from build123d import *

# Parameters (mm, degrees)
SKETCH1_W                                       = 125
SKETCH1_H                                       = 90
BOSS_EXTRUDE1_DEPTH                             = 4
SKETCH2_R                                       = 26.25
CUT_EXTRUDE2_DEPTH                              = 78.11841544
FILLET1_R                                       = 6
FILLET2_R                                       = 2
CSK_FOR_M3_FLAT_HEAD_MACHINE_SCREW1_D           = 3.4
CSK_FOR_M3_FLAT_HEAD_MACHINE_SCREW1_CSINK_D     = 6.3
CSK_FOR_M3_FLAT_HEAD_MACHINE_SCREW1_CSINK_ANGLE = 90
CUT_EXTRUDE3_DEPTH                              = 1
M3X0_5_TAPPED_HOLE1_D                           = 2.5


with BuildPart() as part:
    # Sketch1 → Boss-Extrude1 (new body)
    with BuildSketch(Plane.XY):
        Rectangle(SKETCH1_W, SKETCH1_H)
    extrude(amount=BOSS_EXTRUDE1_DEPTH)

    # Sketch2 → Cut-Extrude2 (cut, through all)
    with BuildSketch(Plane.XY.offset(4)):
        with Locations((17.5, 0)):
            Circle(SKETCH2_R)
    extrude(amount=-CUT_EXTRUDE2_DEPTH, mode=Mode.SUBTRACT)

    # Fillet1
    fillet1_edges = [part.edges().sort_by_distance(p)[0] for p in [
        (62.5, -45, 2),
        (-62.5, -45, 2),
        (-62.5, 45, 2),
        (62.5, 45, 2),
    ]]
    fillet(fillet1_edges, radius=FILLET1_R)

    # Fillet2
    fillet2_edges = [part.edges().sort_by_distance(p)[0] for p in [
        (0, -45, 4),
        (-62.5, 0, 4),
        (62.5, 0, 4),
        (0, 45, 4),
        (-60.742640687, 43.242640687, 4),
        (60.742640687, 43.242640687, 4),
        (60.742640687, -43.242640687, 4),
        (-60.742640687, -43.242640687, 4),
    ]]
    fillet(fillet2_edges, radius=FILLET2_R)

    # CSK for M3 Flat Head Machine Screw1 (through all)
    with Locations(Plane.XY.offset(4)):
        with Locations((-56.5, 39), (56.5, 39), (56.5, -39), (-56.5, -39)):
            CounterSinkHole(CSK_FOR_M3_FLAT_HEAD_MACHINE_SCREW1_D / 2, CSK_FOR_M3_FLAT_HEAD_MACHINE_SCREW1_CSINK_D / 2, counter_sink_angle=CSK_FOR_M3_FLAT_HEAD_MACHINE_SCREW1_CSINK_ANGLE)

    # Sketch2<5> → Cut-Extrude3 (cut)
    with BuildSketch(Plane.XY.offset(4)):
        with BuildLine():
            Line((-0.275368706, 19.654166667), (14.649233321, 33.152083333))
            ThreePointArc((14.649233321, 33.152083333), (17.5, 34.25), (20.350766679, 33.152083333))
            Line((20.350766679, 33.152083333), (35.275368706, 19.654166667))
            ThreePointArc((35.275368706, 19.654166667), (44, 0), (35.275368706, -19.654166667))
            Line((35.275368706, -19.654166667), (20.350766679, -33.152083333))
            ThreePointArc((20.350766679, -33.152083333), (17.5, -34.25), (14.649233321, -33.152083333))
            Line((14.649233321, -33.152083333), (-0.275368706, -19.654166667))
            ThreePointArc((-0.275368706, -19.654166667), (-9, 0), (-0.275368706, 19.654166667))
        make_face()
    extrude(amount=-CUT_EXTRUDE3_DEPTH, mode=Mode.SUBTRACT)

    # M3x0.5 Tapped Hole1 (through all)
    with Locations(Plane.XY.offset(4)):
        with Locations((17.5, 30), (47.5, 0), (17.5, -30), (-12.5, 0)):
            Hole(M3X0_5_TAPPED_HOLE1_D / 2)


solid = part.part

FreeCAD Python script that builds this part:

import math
import FreeCAD as App
import Part
import Sketcher


def edges_at(feature, points):
    """Names of the edges that pass closest to the given points."""
    edges = feature.Shape.Edges
    near = lambda p: min(range(len(edges)), key=lambda i: edges[i].distToShape(Part.Vertex(*p))[0])
    return sorted({f"Edge{near(p) + 1}" for p in points})

doc = App.newDocument("Part")
body = doc.addObject("PartDesign::Body", "Body")

# Sketch on XY plane
sketch1 = body.newObject("Sketcher::SketchObject", "Sketch")
sketch1.AttachmentSupport = (doc.getObject("XY_Plane"), [""])
sketch1.MapMode = "FlatFace"
sketch1.addGeometry(Part.LineSegment(App.Vector(-62, 45, 0), App.Vector(-62, -45, 0)), False)
sketch1.addGeometry(Part.LineSegment(App.Vector(-62, -45, 0), App.Vector(62, -45, 0)), False)
sketch1.addGeometry(Part.LineSegment(App.Vector(62, -45, 0), App.Vector(62, 45, 0)), False)
sketch1.addGeometry(Part.LineSegment(App.Vector(62, 45, 0), App.Vector(-62, 45, 0)), False)
sketch1.addConstraint(Sketcher.Constraint("Coincident", 0, 2, 1, 1))
sketch1.addConstraint(Sketcher.Constraint("Coincident", 1, 2, 2, 1))
sketch1.addConstraint(Sketcher.Constraint("Coincident", 2, 2, 3, 1))
sketch1.addConstraint(Sketcher.Constraint("Coincident", 3, 2, 0, 1))
sketch1.addConstraint(Sketcher.Constraint("Vertical", 0))
sketch1.addConstraint(Sketcher.Constraint("Horizontal", 1))
sketch1.addConstraint(Sketcher.Constraint("Vertical", 2))
sketch1.addConstraint(Sketcher.Constraint("Horizontal", 3))
sketch1.addConstraint(Sketcher.Constraint("Symmetric", 0, 2, 2, 2, -1, 1))
sketch1.addConstraint(Sketcher.Constraint("DistanceX", 1, 1, 1, 2, 125.0))
sketch1.addConstraint(Sketcher.Constraint("DistanceY", 0, 2, 0, 1, 90.0))
pad1 = body.newObject("PartDesign::Pad", "Pad")
pad1.Profile = sketch1
pad1.Length = 4

# Sketch on XY plane
sketch2 = body.newObject("Sketcher::SketchObject", "Sketch001")
sketch2.AttachmentSupport = (doc.getObject("XY_Plane"), [""])
sketch2.MapMode = "FlatFace"
sketch2.AttachmentOffset = App.Placement(App.Vector(0, 0, 4), App.Rotation())
sketch2.addGeometry(Part.Circle(App.Vector(18, 0, 0), App.Vector(0, 0, 1), 26), False)
sketch2.addConstraint(Sketcher.Constraint("PointOnObject", 0, 3, -1))
sketch2.addConstraint(Sketcher.Constraint("Diameter", 0, 52.5))
sketch2.addConstraint(Sketcher.Constraint("DistanceX", -1, 1, 0, 3, 17.5))
pocket1 = body.newObject("PartDesign::Pocket", "Pocket")
pocket1.Profile = sketch2
pocket1.Type = "ThroughAll"
doc.recompute()

fillet = body.newObject("PartDesign::Fillet", "Fillet")
fillet.Base = (pocket1, edges_at(pocket1, [
    (62.5, -45, 2),
    (-62.5, -45, 2),
    (-62.5, 45, 2),
    (62.5, 45, 2),
]))
fillet.Radius = 6
doc.recompute()

fillet2 = body.newObject("PartDesign::Fillet", "Fillet001")
fillet2.Base = (fillet, edges_at(fillet, [
    (0, -45, 4),
    (-62.5, 0, 4),
    (62.5, 0, 4),
    (0, 45, 4),
    (-60.743, 43.243, 4),
    (60.743, 43.243, 4),
    (60.743, -43.243, 4),
    (-60.743, -43.243, 4),
]))
fillet2.Radius = 2

# Sketch on XY plane
sketch3 = body.newObject("Sketcher::SketchObject", "Sketch002")
sketch3.AttachmentSupport = (doc.getObject("XY_Plane"), [""])
sketch3.MapMode = "FlatFace"
sketch3.AttachmentOffset = App.Placement(App.Vector(0, 0, 4), App.Rotation())
sketch3.addGeometry(Part.Circle(App.Vector(-56.5, 39, 0), App.Vector(0, 0, 1), 1.7), False)
sketch3.addGeometry(Part.Circle(App.Vector(56.5, 39, 0), App.Vector(0, 0, 1), 1.7), False)
sketch3.addGeometry(Part.Circle(App.Vector(56.5, -39, 0), App.Vector(0, 0, 1), 1.7), False)
sketch3.addGeometry(Part.Circle(App.Vector(-56.5, -39, 0), App.Vector(0, 0, 1), 1.7), False)
sketch3.addConstraint(Sketcher.Constraint("Equal", 0, 1))
sketch3.addConstraint(Sketcher.Constraint("Equal", 1, 2))
sketch3.addConstraint(Sketcher.Constraint("Equal", 2, 3))
sketch3.addConstraint(Sketcher.Constraint("Symmetric", 0, 3, 2, 3, -1, 1))
sketch3.addConstraint(Sketcher.Constraint("Symmetric", 1, 3, 3, 3, -1, 1))
sketch3.addConstraint(Sketcher.Constraint("Symmetric", 0, 3, 1, 3, -2))
sketch3.addConstraint(Sketcher.Constraint("Diameter", 0, 3.4))
sketch3.addConstraint(Sketcher.Constraint("DistanceY", -1, 1, 0, 3, 39.0))
sketch3.addConstraint(Sketcher.Constraint("DistanceX", 0, 3, 1, 3, 113.0))
doc.recompute()
hole = body.newObject("PartDesign::Hole", "Hole")
hole.Profile = sketch3
hole.ThreadType = "None"
hole.Diameter = 3.4
hole.DepthType = "ThroughAll"
hole.HoleCutType = "Countersink"
hole.HoleCutDiameter = 6.3
hole.HoleCutCountersinkAngle = 90

# Sketch on XY plane
sketch4 = body.newObject("Sketcher::SketchObject", "Sketch003")
sketch4.AttachmentSupport = (doc.getObject("XY_Plane"), [""])
sketch4.MapMode = "FlatFace"
sketch4.AttachmentOffset = App.Placement(App.Vector(0, 0, 4), App.Rotation())
sketch4.addGeometry(Part.LineSegment(App.Vector(14.6, 33.2, 0), App.Vector(-0.3, 19.7, 0)), False)
sketch4.addGeometry(Part.ArcOfCircle(Part.Circle(App.Vector(17.5, 0, 0), App.Vector(0, 0, 1), 26.5), math.radians(132), math.radians(228)), False)
sketch4.addGeometry(Part.LineSegment(App.Vector(-0.3, -19.7, 0), App.Vector(14.6, -33.2, 0)), False)
sketch4.addGeometry(Part.ArcOfCircle(Part.Circle(App.Vector(17.5, -30, 0), App.Vector(0, 0, 1), 4.2), math.radians(-132), math.radians(-48)), False)
sketch4.addGeometry(Part.LineSegment(App.Vector(20.4, -33.2, 0), App.Vector(35.3, -19.7, 0)), False)
sketch4.addGeometry(Part.ArcOfCircle(Part.Circle(App.Vector(17.5, 0, 0), App.Vector(0, 0, 1), 26.5), math.radians(-48), math.radians(48)), False)
sketch4.addGeometry(Part.LineSegment(App.Vector(35.3, 19.7, 0), App.Vector(20.4, 33.2, 0)), False)
sketch4.addGeometry(Part.ArcOfCircle(Part.Circle(App.Vector(17.5, 30, 0), App.Vector(0, 0, 1), 4.2), math.radians(48), math.radians(132)), False)
sketch4.addConstraint(Sketcher.Constraint("Tangent", 0, 2, 1, 1))
sketch4.addConstraint(Sketcher.Constraint("Tangent", 1, 2, 2, 1))
sketch4.addConstraint(Sketcher.Constraint("Tangent", 2, 2, 3, 1))
sketch4.addConstraint(Sketcher.Constraint("Tangent", 3, 2, 4, 1))
sketch4.addConstraint(Sketcher.Constraint("Tangent", 4, 2, 5, 1))
sketch4.addConstraint(Sketcher.Constraint("Tangent", 5, 2, 6, 1))
sketch4.addConstraint(Sketcher.Constraint("Tangent", 6, 2, 7, 1))
sketch4.addConstraint(Sketcher.Constraint("Tangent", 7, 2, 0, 1))
sketch4.addConstraint(Sketcher.Constraint("Coincident", 5, 3, 1, 3))
sketch4.addConstraint(Sketcher.Constraint("Equal", 1, 5))
sketch4.addConstraint(Sketcher.Constraint("Equal", 3, 7))
sketch4.addConstraint(Sketcher.Constraint("Symmetric", 3, 3, 7, 3, -1))
sketch4.addConstraint(Sketcher.Constraint("PointOnObject", 1, 3, -1))
sketch4.addConstraint(Sketcher.Constraint("Parallel", 0, 4))
sketch4.addConstraint(Sketcher.Constraint("Radius", 1, 26.5))
sketch4.addConstraint(Sketcher.Constraint("Radius", 3, 4.25))
sketch4.addConstraint(Sketcher.Constraint("DistanceY", 3, 3, -1, 1, 30.0))
sketch4.addConstraint(Sketcher.Constraint("DistanceX", -1, 1, 1, 3, 17.5))
pocket2 = body.newObject("PartDesign::Pocket", "Pocket001")
pocket2.Profile = sketch4
pocket2.Length = 1

# Sketch on XY plane
sketch5 = body.newObject("Sketcher::SketchObject", "Sketch004")
sketch5.AttachmentSupport = (doc.getObject("XY_Plane"), [""])
sketch5.MapMode = "FlatFace"
sketch5.AttachmentOffset = App.Placement(App.Vector(0, 0, 4), App.Rotation())
sketch5.addGeometry(Part.Circle(App.Vector(17.5, 30, 0), App.Vector(0, 0, 1), 1.2), False)
sketch5.addGeometry(Part.Circle(App.Vector(47.5, 0, 0), App.Vector(0, 0, 1), 1.2), False)
sketch5.addGeometry(Part.Circle(App.Vector(17.5, -30, 0), App.Vector(0, 0, 1), 1.2), False)
sketch5.addGeometry(Part.Circle(App.Vector(-12.5, 0, 0), App.Vector(0, 0, 1), 1.2), False)
sketch5.addConstraint(Sketcher.Constraint("Equal", 0, 1))
sketch5.addConstraint(Sketcher.Constraint("Equal", 1, 2))
sketch5.addConstraint(Sketcher.Constraint("Equal", 2, 3))
sketch5.addConstraint(Sketcher.Constraint("Symmetric", 0, 3, 2, 3, -1))
sketch5.addConstraint(Sketcher.Constraint("PointOnObject", 1, 3, -1))
sketch5.addConstraint(Sketcher.Constraint("PointOnObject", 3, 3, -1))
sketch5.addConstraint(Sketcher.Constraint("Diameter", 0, 2.5))
sketch5.addConstraint(Sketcher.Constraint("DistanceY", -1, 1, 0, 3, 30.0))
sketch5.addConstraint(Sketcher.Constraint("DistanceX", 0, 3, 1, 3, 30.0))
sketch5.addConstraint(Sketcher.Constraint("DistanceX", 3, 3, 0, 3, 30.0))
sketch5.addConstraint(Sketcher.Constraint("DistanceX", -1, 1, 0, 3, 17.5))
doc.recompute()
hole2 = body.newObject("PartDesign::Hole", "Hole001")
hole2.Profile = sketch5
hole2.ThreadType = "None"
hole2.Diameter = 2.5
hole2.DepthType = "ThroughAll"

doc.recompute()
